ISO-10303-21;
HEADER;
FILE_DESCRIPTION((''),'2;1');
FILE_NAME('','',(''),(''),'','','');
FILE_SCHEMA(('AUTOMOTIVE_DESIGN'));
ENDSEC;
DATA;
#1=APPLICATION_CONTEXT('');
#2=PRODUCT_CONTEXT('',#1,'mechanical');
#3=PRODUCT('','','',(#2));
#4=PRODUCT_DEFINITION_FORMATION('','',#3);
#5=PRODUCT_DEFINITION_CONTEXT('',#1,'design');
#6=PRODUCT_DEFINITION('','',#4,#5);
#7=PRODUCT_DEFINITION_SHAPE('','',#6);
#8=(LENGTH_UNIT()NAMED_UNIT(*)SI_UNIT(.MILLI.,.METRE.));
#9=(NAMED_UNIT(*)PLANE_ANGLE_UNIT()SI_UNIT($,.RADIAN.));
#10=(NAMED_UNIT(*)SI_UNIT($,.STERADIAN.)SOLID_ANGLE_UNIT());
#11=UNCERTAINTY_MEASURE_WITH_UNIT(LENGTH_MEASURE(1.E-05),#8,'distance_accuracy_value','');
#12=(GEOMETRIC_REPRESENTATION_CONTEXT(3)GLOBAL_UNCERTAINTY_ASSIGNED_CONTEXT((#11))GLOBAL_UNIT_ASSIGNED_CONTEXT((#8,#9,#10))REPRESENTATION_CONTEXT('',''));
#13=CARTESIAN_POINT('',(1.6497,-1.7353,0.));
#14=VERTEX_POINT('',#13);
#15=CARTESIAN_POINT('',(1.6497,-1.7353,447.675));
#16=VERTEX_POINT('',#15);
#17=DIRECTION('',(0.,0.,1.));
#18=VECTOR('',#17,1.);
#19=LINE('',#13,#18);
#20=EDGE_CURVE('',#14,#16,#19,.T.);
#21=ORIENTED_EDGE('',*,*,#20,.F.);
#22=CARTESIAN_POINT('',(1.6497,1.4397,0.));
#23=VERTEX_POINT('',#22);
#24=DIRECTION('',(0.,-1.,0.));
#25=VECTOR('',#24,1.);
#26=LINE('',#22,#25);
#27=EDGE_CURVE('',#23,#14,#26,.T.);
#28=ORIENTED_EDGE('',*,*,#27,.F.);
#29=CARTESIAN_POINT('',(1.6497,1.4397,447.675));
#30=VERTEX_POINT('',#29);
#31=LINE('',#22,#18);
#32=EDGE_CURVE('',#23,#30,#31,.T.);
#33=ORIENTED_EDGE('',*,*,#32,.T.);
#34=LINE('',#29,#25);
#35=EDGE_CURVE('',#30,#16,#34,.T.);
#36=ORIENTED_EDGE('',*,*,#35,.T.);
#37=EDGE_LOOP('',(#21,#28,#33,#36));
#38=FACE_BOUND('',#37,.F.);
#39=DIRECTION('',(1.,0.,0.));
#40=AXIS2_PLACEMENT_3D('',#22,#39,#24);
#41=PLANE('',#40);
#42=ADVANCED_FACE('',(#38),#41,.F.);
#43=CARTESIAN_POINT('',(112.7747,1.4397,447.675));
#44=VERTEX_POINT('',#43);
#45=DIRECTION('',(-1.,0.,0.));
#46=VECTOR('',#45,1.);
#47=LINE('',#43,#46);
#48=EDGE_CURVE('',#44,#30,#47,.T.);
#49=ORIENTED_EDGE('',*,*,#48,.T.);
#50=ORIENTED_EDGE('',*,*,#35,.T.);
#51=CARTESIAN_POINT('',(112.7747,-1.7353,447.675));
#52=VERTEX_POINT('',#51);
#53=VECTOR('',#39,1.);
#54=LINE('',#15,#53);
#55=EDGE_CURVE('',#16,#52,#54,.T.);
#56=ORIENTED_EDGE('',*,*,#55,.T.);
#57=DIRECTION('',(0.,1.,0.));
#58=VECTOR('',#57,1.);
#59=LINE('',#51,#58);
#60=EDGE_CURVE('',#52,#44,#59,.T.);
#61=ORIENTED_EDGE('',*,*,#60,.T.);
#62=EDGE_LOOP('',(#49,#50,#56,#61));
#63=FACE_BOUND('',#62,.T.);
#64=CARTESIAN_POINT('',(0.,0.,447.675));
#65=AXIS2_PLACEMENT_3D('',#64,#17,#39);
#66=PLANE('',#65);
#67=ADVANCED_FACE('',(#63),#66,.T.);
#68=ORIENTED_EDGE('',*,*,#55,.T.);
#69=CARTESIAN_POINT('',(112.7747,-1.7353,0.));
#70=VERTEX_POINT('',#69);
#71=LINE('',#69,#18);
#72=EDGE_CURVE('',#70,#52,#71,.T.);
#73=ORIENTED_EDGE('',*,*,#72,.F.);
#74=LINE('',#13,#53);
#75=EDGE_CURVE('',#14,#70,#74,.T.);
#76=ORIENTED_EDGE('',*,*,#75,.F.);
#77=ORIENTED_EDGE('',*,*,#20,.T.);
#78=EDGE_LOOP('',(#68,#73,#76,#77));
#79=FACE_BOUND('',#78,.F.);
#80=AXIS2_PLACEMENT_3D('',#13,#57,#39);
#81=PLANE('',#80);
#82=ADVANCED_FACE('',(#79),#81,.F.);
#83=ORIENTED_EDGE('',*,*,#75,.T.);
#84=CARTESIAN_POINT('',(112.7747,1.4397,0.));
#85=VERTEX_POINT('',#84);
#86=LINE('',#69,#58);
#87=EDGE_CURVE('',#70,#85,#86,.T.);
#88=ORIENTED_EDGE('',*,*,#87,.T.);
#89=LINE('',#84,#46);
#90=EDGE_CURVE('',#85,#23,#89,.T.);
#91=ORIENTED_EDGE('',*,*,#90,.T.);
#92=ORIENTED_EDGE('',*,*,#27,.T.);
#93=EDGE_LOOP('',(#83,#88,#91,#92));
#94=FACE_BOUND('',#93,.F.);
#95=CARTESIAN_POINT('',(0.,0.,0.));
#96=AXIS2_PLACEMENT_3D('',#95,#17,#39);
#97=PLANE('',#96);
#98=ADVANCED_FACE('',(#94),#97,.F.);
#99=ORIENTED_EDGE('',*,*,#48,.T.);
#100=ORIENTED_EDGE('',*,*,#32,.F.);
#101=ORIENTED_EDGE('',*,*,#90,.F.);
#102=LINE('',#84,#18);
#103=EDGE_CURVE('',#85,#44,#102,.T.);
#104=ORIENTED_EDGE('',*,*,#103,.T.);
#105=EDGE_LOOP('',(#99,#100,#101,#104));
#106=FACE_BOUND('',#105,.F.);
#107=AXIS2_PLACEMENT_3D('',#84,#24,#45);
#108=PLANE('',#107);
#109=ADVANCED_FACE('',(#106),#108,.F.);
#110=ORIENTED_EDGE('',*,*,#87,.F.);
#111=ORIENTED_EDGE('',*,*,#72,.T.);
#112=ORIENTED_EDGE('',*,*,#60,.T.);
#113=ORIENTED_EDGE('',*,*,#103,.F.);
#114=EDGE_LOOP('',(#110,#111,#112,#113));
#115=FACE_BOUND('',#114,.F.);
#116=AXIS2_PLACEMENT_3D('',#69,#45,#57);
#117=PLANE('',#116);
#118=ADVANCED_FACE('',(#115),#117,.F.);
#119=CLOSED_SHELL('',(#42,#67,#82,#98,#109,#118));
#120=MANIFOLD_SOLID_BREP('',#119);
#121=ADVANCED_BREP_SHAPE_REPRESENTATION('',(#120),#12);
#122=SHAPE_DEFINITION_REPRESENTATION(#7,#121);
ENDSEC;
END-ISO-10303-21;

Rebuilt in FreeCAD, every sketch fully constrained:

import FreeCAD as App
import Part
import Sketcher
Q = App.Units.Quantity

doc = App.newDocument("Part")
params = doc.addObject("Spreadsheet::Sheet", "Params")
for row, (alias, value) in enumerate([
    ("sketch1_width", "4.375 in"),
    ("sketch1_height", "0.125 in"),
    ("pad1_length", "17.625 in"),
], start=1):
    params.set(f"A{row}", alias)
    params.set(f"B{row}", "=" + value)
    params.setAlias(f"B{row}", alias)

body = doc.addObject("PartDesign::Body", "Body")

# Sketch on XY plane
sketch1 = doc.addObject("Sketcher::SketchObject", "Sketch")
body.addObject(sketch1)
sketch1.AttachmentSupport = (doc.XY_Plane, [""])
sketch1.MapMode = "FlatFace"
sketch1.addGeometry([
    Part.LineSegment(App.Vector(1.6497, 1.4397, 0), App.Vector(1.6497, -1.7353, 0)),
    Part.LineSegment(App.Vector(1.6497, -1.7353, 0), App.Vector(112.7747, -1.7353, 0)),
    Part.LineSegment(App.Vector(112.7747, -1.7353, 0), App.Vector(112.7747, 1.4397, 0)),
    Part.LineSegment(App.Vector(112.7747, 1.4397, 0), App.Vector(1.6497, 1.4397, 0)),
], False)
sketch1.addConstraint([
    Sketcher.Constraint("Coincident", 0, 2, 1, 1),
    Sketcher.Constraint("Coincident", 1, 2, 2, 1),
    Sketcher.Constraint("Coincident", 2, 2, 3, 1),
    Sketcher.Constraint("Coincident", 3, 2, 0, 1),
    Sketcher.Constraint("Vertical", 0),
    Sketcher.Constraint("Horizontal", 1),
    Sketcher.Constraint("Vertical", 2),
    Sketcher.Constraint("Horizontal", 3),
    Sketcher.Constraint("DistanceX", 1, 1, 1, 2, Q("4.375 in")),
    Sketcher.Constraint("DistanceY", 0, 2, 0, 1, Q("0.125 in")),
    Sketcher.Constraint("DistanceX", -1, 1, 0, 2, 1.6497),
    Sketcher.Constraint("DistanceY", 0, 2, -1, 1, 1.7353),
])
sketch1.setExpression("Constraints[8]", "Params.sketch1_width")
sketch1.setExpression("Constraints[9]", "Params.sketch1_height")
pad1 = doc.addObject("PartDesign::Pad", "Pad")
body.addObject(pad1)
pad1.Profile = sketch1
pad1.setExpression("Length", "Params.pad1_length")

doc.recompute()
